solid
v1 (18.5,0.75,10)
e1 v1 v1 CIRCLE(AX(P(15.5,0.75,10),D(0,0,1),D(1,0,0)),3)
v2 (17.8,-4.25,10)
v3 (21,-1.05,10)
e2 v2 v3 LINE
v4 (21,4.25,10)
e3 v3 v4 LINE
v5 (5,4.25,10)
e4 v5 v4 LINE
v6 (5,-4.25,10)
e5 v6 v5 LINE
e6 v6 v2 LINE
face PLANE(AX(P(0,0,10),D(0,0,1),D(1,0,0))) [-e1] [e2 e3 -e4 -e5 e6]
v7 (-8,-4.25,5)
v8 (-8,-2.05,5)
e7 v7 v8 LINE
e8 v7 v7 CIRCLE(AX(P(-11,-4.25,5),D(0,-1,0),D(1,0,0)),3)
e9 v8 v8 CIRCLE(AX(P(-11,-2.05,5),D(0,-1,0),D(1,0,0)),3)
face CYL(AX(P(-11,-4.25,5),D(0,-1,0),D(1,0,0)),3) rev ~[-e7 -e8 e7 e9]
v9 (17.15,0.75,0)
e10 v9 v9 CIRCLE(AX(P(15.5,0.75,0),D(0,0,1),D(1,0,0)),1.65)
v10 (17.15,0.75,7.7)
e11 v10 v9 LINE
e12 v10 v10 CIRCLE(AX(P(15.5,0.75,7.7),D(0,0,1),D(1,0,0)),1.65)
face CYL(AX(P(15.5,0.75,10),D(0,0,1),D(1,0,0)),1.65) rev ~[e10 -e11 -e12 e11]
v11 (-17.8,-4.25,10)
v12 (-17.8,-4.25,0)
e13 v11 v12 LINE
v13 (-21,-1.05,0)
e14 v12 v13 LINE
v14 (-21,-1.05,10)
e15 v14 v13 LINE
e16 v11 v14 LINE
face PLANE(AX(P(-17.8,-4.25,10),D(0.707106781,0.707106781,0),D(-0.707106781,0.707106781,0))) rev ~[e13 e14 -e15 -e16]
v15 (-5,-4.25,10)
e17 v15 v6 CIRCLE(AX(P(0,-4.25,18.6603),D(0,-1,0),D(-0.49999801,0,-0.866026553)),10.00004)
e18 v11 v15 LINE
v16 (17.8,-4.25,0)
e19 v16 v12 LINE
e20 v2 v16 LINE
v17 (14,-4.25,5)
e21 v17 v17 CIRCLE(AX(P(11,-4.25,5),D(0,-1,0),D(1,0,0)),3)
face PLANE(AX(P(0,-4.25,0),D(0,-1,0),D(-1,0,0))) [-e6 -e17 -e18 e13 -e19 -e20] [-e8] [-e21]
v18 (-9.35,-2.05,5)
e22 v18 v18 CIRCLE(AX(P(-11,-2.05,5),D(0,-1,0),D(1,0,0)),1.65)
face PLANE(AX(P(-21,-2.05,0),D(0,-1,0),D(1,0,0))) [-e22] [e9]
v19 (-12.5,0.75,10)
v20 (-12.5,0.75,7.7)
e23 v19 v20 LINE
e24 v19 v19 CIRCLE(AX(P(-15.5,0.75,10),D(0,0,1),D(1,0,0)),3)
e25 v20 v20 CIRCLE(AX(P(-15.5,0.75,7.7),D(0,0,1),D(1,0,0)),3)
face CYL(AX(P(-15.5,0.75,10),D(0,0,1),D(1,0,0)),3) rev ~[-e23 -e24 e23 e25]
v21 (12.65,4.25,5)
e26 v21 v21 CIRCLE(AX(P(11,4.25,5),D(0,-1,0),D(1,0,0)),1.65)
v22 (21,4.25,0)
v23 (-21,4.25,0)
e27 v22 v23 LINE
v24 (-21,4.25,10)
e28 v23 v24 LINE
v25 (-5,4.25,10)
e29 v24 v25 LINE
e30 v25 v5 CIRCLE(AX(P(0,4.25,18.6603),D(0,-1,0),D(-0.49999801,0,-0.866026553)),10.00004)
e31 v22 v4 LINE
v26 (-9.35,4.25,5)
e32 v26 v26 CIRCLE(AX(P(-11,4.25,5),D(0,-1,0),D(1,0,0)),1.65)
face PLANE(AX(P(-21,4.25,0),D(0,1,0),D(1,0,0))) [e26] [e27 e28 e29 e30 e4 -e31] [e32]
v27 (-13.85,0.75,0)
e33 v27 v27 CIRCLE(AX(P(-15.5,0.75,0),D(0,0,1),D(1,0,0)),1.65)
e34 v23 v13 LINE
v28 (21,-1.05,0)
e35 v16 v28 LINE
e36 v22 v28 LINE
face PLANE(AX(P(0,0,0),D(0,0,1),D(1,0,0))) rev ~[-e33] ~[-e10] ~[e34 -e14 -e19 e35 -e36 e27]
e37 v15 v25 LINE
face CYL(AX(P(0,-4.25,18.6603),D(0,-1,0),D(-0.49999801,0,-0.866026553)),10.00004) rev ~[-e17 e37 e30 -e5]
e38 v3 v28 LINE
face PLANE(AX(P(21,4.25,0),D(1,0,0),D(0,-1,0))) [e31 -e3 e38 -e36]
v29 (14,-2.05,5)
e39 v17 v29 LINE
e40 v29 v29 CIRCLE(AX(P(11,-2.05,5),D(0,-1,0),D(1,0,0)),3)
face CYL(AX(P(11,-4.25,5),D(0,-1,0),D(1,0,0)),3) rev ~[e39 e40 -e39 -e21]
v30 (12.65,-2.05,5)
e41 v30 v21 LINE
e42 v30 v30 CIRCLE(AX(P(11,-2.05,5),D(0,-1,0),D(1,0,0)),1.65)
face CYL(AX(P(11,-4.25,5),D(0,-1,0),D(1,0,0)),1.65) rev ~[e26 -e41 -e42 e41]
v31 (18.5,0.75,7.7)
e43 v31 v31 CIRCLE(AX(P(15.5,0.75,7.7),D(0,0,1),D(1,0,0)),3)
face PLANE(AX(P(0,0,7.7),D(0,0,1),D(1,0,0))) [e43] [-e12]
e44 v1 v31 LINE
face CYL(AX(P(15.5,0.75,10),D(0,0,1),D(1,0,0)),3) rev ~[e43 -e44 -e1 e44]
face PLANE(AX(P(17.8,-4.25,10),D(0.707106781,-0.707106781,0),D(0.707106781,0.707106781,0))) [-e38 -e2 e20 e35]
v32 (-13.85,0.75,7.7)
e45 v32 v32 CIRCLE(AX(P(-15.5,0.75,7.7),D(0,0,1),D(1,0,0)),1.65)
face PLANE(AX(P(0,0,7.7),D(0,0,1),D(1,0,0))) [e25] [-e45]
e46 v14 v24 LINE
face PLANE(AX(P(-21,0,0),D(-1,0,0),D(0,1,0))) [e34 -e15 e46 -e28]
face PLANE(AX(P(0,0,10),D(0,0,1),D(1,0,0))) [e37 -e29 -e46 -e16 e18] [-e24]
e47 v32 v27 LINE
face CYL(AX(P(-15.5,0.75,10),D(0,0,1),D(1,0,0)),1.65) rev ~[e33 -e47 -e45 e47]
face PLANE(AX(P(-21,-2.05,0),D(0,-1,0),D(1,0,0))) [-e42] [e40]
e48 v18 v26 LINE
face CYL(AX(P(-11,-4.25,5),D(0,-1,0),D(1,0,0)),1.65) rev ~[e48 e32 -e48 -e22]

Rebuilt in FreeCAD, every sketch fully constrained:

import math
import FreeCAD as App
import Part
import Sketcher

V = App.Vector
Q = App.Units.Quantity


def add_polygon(sketch, points):
    """Adds a closed chain of lines whose ends are joined by coincident constraints."""
    first, n = sketch.GeometryCount, len(points)
    for a, b in zip(points, points[1:] + points[:1]):
        sketch.addGeometry(Part.LineSegment(App.Vector(*a, 0), App.Vector(*b, 0)), False)
    for i in range(n):
        sketch.addConstraint(Sketcher.Constraint("Coincident", first + i, 2, first + (i + 1) % n, 1))

doc = App.newDocument("Part")
params = doc.addObject("Spreadsheet::Sheet", "Params")
for row, (alias, value) in enumerate([
    ("sketch1_width", "42 mm"),
    ("sketch1_height", "8.5 mm"),
    ("pad1_length", "10 mm"),
    ("sketch2_diameter", "3.3 mm"),
    ("pocket1_length", "10 mm"),
    ("sketch3_diameter", "6 mm"),
    ("sketch3_diameter2", "3.3 mm"),
    ("pocket2_length", "2.2 mm"),
    ("sketch4_diameter", "3.3 mm"),
    ("sketch4_width", "3.2 mm"),
    ("pocket3_length", "10 mm"),
    ("sketch5_diameter", "6 mm"),
    ("sketch5_diameter2", "3.3 mm"),
    ("pocket4_length", "2.3 mm"),
    ("sketch6_radius", "10 mm"),
    ("sketch6_width", "10 mm"),
    ("pocket5_length", "8.5 mm"),
], start=1):
    params.set(f"A{row}", alias)
    params.set(f"B{row}", "=" + value)
    params.setAlias(f"B{row}", alias)

body = doc.addObject("PartDesign::Body", "Body")

# Sketch on XY plane
sketch1 = doc.addObject("Sketcher::SketchObject", "Sketch")
body.addObject(sketch1)
sketch1.AttachmentSupport = (doc.XY_Plane, [""])
sketch1.MapMode = "FlatFace"
add_polygon(sketch1, [(-21, 4.25), (-21, -4.25), (21, -4.25), (21, 4.25)])  # lines 0-3
sketch1.addConstraint([
    Sketcher.Constraint("Vertical", 0),
    Sketcher.Constraint("Horizontal", 1),
    Sketcher.Constraint("Vertical", 2),
    Sketcher.Constraint("Horizontal", 3),
    Sketcher.Constraint("Symmetric", 0, 2, 2, 2, -1, 1),
    Sketcher.Constraint("DistanceX", 1, 1, 1, 2, Q("42 mm")),
    Sketcher.Constraint("DistanceY", 0, 2, 0, 1, Q("8.5 mm")),
])
sketch1.setExpression("Constraints[9]", "Params.sketch1_width")
sketch1.setExpression("Constraints[10]", "Params.sketch1_height")
pad1 = doc.addObject("PartDesign::Pad", "Pad")
body.addObject(pad1)
pad1.Profile = sketch1
pad1.setExpression("Length", "Params.pad1_length")

# Sketch on XZ plane
sketch2 = doc.addObject("Sketcher::SketchObject", "Sketch001")
body.addObject(sketch2)
sketch2.AttachmentSupport = (doc.XZ_Plane, [""])
sketch2.MapMode = "FlatFace"
sketch2.AttachmentOffset = App.Placement(V(0, 0, 4.25), App.Rotation())
sketch2.addGeometry([
    Part.Circle(V(-11, 5, 0), V(0, 0, 1), 1.65),
    Part.Circle(V(11, 5, 0), V(0, 0, 1), 1.65),
], False)
sketch2.addConstraint([
    Sketcher.Constraint("Equal", 0, 1),
    Sketcher.Constraint("Symmetric", 0, 3, 1, 3, -2),
    Sketcher.Constraint("Diameter", 0, Q("3.3 mm")),
    Sketcher.Constraint("DistanceY", -1, 1, 0, 3, Q("5 mm")),
    Sketcher.Constraint("DistanceX", 0, 3, -1, 1, Q("11 mm")),
])
sketch2.setExpression("Constraints[2]", "Params.sketch2_diameter")
pocket1 = doc.addObject("PartDesign::Pocket", "Pocket")
body.addObject(pocket1)
pocket1.Profile = sketch2
pocket1.setExpression("Length", "Params.pocket1_length")

# Sketch on XZ plane
sketch3 = doc.addObject("Sketcher::SketchObject", "Sketch002")
body.addObject(sketch3)
sketch3.AttachmentSupport = (doc.XZ_Plane, [""])
sketch3.MapMode = "FlatFace"
sketch3.AttachmentOffset = App.Placement(V(0, 0, 4.25), App.Rotation())
sketch3.addGeometry([
    Part.Circle(V(-11, 5, 0), V(0, 0, 1), 3),
    Part.Circle(V(-11, 5, 0), V(0, 0, 1), 1.65),
    Part.Circle(V(11, 5, 0), V(0, 0, 1), 3),
    Part.Circle(V(11, 5, 0), V(0, 0, 1), 1.65),
], False)
sketch3.addConstraint([
    Sketcher.Constraint("Coincident", 1, 3, 0, 3),
    Sketcher.Constraint("Coincident", 3, 3, 2, 3),
    Sketcher.Constraint("Equal", 0, 2),
    Sketcher.Constraint("Equal", 1, 3),
    Sketcher.Constraint("Symmetric", 0, 3, 2, 3, -2),
    Sketcher.Constraint("Diameter", 0, Q("6 mm")),
    Sketcher.Constraint("Diameter", 1, Q("3.3 mm")),
    Sketcher.Constraint("DistanceY", -1, 1, 0, 3, Q("5 mm")),
    Sketcher.Constraint("DistanceX", 0, 3, -1, 1, Q("11 mm")),
])
sketch3.setExpression("Constraints[5]", "Params.sketch3_diameter")
sketch3.setExpression("Constraints[6]", "Params.sketch3_diameter2")
pocket2 = doc.addObject("PartDesign::Pocket", "Pocket001")
body.addObject(pocket2)
pocket2.Profile = sketch3
pocket2.setExpression("Length", "Params.pocket2_length")

# Sketch on XY plane
sketch4 = doc.addObject("Sketcher::SketchObject", "Sketch003")
body.addObject(sketch4)
sketch4.AttachmentSupport = (doc.XY_Plane, [""])
sketch4.MapMode = "FlatFace"
sketch4.AttachmentOffset = App.Placement(V(0, 0, 10), App.Rotation())
add_polygon(sketch4, [(-21, -1.05), (-21, -4.25), (-17.8, -4.25)])  # lines 0-2
add_polygon(sketch4, [(21, -1.05), (17.8, -4.25), (21, -4.25)])  # lines 3-5
sketch4.addGeometry(Part.Circle(V(-15.5, 0.75, 0), V(0, 0, 1), 1.65), False)  # 6
sketch4.addGeometry(Part.Circle(V(15.5, 0.75, 0), V(0, 0, 1), 1.65), False)  # 7
sketch4.addConstraint([
    Sketcher.Constraint("Vertical", 0),
    Sketcher.Constraint("Horizontal", 1),
    Sketcher.Constraint("Horizontal", 4),
    Sketcher.Constraint("Vertical", 5),
    Sketcher.Constraint("Equal", 6, 7),
    Sketcher.Constraint("Symmetric", 6, 3, 7, 3, -2),
    Sketcher.Constraint("Symmetric", 1, 2, 3, 2, -2),
    Sketcher.Constraint("Symmetric", 2, 2, 5, 2, -2),
    Sketcher.Constraint("Perpendicular", 2, 3),
    Sketcher.Constraint("Diameter", 6, Q("3.3 mm")),
    Sketcher.Constraint("DistanceX", 1, 1, 1, 2, Q("3.2 mm")),
    Sketcher.Constraint("DistanceX", 0, 2, 6, 3, Q("5.5 mm")),
    Sketcher.Constraint("DistanceX", 0, 2, -1, 1, Q("21 mm")),
    Sketcher.Constraint("DistanceY", 0, 2, 6, 3, Q("5 mm")),
    Sketcher.Constraint("DistanceY", -1, 1, 6, 3, Q("0.75 mm")),
])
sketch4.setExpression("Constraints[15]", "Params.sketch4_diameter")
sketch4.setExpression("Constraints[16]", "Params.sketch4_width")
pocket3 = doc.addObject("PartDesign::Pocket", "Pocket002")
body.addObject(pocket3)
pocket3.Profile = sketch4
pocket3.setExpression("Length", "Params.pocket3_length")

# Sketch on XY plane
sketch5 = doc.addObject("Sketcher::SketchObject", "Sketch004")
body.addObject(sketch5)
sketch5.AttachmentSupport = (doc.XY_Plane, [""])
sketch5.MapMode = "FlatFace"
sketch5.AttachmentOffset = App.Placement(V(0, 0, 10), App.Rotation())
sketch5.addGeometry([
    Part.Circle(V(-15.5, 0.75, 0), V(0, 0, 1), 3),
    Part.Circle(V(-15.5, 0.75, 0), V(0, 0, 1), 1.65),
    Part.Circle(V(15.5, 0.75, 0), V(0, 0, 1), 3),
    Part.Circle(V(15.5, 0.75, 0), V(0, 0, 1), 1.65),
], False)
sketch5.addConstraint([
    Sketcher.Constraint("Coincident", 1, 3, 0, 3),
    Sketcher.Constraint("Coincident", 3, 3, 2, 3),
    Sketcher.Constraint("Equal", 0, 2),
    Sketcher.Constraint("Equal", 1, 3),
    Sketcher.Constraint("Symmetric", 0, 3, 2, 3, -2),
    Sketcher.Constraint("Diameter", 0, Q("6 mm")),
    Sketcher.Constraint("Diameter", 1, Q("3.3 mm")),
    Sketcher.Constraint("DistanceX", 0, 3, 2, 3, Q("31 mm")),
    Sketcher.Constraint("DistanceY", -1, 1, 0, 3, Q("0.75 mm")),
])
sketch5.setExpression("Constraints[5]", "Params.sketch5_diameter")
sketch5.setExpression("Constraints[6]", "Params.sketch5_diameter2")
pocket4 = doc.addObject("PartDesign::Pocket", "Pocket003")
body.addObject(pocket4)
pocket4.Profile = sketch5
pocket4.setExpression("Length", "Params.pocket4_length")

# Sketch on XZ plane
sketch6 = doc.addObject("Sketcher::SketchObject", "Sketch005")
body.addObject(sketch6)
sketch6.AttachmentSupport = (doc.XZ_Plane, [""])
sketch6.MapMode = "FlatFace"
sketch6.AttachmentOffset = App.Placement(V(0, 0, 4.25), App.Rotation())
sketch6.addGeometry([
    Part.LineSegment(V(5, 10, 0), V(-5, 10, 0)),
    Part.ArcOfCircle(Part.Circle(V(0, 18.6603, 0), V(0, 0, 1), 10.00004), math.radians(-119.999868), math.radians(-60.000132)),
], False)
sketch6.addConstraint([
    Sketcher.Constraint("Coincident", 0, 1, 1, 2),
    Sketcher.Constraint("Coincident", 1, 1, 0, 2),
    Sketcher.Constraint("Horizontal", 0),
    Sketcher.Constraint("PointOnObject", 1, 3, -2),
    Sketcher.Constraint("Radius", 1, Q("10 mm")),
    Sketcher.Constraint("DistanceX", 0, 2, 0, 1, Q("10 mm")),
    Sketcher.Constraint("DistanceY", -1, 1, 0, 1, Q("10 mm")),
])
sketch6.setExpression("Constraints[4]", "Params.sketch6_radius")
sketch6.setExpression("Constraints[5]", "Params.sketch6_width")
pocket5 = doc.addObject("PartDesign::Pocket", "Pocket004")
body.addObject(pocket5)
pocket5.Profile = sketch6
pocket5.setExpression("Length", "Params.pocket5_length")

doc.recompute()
